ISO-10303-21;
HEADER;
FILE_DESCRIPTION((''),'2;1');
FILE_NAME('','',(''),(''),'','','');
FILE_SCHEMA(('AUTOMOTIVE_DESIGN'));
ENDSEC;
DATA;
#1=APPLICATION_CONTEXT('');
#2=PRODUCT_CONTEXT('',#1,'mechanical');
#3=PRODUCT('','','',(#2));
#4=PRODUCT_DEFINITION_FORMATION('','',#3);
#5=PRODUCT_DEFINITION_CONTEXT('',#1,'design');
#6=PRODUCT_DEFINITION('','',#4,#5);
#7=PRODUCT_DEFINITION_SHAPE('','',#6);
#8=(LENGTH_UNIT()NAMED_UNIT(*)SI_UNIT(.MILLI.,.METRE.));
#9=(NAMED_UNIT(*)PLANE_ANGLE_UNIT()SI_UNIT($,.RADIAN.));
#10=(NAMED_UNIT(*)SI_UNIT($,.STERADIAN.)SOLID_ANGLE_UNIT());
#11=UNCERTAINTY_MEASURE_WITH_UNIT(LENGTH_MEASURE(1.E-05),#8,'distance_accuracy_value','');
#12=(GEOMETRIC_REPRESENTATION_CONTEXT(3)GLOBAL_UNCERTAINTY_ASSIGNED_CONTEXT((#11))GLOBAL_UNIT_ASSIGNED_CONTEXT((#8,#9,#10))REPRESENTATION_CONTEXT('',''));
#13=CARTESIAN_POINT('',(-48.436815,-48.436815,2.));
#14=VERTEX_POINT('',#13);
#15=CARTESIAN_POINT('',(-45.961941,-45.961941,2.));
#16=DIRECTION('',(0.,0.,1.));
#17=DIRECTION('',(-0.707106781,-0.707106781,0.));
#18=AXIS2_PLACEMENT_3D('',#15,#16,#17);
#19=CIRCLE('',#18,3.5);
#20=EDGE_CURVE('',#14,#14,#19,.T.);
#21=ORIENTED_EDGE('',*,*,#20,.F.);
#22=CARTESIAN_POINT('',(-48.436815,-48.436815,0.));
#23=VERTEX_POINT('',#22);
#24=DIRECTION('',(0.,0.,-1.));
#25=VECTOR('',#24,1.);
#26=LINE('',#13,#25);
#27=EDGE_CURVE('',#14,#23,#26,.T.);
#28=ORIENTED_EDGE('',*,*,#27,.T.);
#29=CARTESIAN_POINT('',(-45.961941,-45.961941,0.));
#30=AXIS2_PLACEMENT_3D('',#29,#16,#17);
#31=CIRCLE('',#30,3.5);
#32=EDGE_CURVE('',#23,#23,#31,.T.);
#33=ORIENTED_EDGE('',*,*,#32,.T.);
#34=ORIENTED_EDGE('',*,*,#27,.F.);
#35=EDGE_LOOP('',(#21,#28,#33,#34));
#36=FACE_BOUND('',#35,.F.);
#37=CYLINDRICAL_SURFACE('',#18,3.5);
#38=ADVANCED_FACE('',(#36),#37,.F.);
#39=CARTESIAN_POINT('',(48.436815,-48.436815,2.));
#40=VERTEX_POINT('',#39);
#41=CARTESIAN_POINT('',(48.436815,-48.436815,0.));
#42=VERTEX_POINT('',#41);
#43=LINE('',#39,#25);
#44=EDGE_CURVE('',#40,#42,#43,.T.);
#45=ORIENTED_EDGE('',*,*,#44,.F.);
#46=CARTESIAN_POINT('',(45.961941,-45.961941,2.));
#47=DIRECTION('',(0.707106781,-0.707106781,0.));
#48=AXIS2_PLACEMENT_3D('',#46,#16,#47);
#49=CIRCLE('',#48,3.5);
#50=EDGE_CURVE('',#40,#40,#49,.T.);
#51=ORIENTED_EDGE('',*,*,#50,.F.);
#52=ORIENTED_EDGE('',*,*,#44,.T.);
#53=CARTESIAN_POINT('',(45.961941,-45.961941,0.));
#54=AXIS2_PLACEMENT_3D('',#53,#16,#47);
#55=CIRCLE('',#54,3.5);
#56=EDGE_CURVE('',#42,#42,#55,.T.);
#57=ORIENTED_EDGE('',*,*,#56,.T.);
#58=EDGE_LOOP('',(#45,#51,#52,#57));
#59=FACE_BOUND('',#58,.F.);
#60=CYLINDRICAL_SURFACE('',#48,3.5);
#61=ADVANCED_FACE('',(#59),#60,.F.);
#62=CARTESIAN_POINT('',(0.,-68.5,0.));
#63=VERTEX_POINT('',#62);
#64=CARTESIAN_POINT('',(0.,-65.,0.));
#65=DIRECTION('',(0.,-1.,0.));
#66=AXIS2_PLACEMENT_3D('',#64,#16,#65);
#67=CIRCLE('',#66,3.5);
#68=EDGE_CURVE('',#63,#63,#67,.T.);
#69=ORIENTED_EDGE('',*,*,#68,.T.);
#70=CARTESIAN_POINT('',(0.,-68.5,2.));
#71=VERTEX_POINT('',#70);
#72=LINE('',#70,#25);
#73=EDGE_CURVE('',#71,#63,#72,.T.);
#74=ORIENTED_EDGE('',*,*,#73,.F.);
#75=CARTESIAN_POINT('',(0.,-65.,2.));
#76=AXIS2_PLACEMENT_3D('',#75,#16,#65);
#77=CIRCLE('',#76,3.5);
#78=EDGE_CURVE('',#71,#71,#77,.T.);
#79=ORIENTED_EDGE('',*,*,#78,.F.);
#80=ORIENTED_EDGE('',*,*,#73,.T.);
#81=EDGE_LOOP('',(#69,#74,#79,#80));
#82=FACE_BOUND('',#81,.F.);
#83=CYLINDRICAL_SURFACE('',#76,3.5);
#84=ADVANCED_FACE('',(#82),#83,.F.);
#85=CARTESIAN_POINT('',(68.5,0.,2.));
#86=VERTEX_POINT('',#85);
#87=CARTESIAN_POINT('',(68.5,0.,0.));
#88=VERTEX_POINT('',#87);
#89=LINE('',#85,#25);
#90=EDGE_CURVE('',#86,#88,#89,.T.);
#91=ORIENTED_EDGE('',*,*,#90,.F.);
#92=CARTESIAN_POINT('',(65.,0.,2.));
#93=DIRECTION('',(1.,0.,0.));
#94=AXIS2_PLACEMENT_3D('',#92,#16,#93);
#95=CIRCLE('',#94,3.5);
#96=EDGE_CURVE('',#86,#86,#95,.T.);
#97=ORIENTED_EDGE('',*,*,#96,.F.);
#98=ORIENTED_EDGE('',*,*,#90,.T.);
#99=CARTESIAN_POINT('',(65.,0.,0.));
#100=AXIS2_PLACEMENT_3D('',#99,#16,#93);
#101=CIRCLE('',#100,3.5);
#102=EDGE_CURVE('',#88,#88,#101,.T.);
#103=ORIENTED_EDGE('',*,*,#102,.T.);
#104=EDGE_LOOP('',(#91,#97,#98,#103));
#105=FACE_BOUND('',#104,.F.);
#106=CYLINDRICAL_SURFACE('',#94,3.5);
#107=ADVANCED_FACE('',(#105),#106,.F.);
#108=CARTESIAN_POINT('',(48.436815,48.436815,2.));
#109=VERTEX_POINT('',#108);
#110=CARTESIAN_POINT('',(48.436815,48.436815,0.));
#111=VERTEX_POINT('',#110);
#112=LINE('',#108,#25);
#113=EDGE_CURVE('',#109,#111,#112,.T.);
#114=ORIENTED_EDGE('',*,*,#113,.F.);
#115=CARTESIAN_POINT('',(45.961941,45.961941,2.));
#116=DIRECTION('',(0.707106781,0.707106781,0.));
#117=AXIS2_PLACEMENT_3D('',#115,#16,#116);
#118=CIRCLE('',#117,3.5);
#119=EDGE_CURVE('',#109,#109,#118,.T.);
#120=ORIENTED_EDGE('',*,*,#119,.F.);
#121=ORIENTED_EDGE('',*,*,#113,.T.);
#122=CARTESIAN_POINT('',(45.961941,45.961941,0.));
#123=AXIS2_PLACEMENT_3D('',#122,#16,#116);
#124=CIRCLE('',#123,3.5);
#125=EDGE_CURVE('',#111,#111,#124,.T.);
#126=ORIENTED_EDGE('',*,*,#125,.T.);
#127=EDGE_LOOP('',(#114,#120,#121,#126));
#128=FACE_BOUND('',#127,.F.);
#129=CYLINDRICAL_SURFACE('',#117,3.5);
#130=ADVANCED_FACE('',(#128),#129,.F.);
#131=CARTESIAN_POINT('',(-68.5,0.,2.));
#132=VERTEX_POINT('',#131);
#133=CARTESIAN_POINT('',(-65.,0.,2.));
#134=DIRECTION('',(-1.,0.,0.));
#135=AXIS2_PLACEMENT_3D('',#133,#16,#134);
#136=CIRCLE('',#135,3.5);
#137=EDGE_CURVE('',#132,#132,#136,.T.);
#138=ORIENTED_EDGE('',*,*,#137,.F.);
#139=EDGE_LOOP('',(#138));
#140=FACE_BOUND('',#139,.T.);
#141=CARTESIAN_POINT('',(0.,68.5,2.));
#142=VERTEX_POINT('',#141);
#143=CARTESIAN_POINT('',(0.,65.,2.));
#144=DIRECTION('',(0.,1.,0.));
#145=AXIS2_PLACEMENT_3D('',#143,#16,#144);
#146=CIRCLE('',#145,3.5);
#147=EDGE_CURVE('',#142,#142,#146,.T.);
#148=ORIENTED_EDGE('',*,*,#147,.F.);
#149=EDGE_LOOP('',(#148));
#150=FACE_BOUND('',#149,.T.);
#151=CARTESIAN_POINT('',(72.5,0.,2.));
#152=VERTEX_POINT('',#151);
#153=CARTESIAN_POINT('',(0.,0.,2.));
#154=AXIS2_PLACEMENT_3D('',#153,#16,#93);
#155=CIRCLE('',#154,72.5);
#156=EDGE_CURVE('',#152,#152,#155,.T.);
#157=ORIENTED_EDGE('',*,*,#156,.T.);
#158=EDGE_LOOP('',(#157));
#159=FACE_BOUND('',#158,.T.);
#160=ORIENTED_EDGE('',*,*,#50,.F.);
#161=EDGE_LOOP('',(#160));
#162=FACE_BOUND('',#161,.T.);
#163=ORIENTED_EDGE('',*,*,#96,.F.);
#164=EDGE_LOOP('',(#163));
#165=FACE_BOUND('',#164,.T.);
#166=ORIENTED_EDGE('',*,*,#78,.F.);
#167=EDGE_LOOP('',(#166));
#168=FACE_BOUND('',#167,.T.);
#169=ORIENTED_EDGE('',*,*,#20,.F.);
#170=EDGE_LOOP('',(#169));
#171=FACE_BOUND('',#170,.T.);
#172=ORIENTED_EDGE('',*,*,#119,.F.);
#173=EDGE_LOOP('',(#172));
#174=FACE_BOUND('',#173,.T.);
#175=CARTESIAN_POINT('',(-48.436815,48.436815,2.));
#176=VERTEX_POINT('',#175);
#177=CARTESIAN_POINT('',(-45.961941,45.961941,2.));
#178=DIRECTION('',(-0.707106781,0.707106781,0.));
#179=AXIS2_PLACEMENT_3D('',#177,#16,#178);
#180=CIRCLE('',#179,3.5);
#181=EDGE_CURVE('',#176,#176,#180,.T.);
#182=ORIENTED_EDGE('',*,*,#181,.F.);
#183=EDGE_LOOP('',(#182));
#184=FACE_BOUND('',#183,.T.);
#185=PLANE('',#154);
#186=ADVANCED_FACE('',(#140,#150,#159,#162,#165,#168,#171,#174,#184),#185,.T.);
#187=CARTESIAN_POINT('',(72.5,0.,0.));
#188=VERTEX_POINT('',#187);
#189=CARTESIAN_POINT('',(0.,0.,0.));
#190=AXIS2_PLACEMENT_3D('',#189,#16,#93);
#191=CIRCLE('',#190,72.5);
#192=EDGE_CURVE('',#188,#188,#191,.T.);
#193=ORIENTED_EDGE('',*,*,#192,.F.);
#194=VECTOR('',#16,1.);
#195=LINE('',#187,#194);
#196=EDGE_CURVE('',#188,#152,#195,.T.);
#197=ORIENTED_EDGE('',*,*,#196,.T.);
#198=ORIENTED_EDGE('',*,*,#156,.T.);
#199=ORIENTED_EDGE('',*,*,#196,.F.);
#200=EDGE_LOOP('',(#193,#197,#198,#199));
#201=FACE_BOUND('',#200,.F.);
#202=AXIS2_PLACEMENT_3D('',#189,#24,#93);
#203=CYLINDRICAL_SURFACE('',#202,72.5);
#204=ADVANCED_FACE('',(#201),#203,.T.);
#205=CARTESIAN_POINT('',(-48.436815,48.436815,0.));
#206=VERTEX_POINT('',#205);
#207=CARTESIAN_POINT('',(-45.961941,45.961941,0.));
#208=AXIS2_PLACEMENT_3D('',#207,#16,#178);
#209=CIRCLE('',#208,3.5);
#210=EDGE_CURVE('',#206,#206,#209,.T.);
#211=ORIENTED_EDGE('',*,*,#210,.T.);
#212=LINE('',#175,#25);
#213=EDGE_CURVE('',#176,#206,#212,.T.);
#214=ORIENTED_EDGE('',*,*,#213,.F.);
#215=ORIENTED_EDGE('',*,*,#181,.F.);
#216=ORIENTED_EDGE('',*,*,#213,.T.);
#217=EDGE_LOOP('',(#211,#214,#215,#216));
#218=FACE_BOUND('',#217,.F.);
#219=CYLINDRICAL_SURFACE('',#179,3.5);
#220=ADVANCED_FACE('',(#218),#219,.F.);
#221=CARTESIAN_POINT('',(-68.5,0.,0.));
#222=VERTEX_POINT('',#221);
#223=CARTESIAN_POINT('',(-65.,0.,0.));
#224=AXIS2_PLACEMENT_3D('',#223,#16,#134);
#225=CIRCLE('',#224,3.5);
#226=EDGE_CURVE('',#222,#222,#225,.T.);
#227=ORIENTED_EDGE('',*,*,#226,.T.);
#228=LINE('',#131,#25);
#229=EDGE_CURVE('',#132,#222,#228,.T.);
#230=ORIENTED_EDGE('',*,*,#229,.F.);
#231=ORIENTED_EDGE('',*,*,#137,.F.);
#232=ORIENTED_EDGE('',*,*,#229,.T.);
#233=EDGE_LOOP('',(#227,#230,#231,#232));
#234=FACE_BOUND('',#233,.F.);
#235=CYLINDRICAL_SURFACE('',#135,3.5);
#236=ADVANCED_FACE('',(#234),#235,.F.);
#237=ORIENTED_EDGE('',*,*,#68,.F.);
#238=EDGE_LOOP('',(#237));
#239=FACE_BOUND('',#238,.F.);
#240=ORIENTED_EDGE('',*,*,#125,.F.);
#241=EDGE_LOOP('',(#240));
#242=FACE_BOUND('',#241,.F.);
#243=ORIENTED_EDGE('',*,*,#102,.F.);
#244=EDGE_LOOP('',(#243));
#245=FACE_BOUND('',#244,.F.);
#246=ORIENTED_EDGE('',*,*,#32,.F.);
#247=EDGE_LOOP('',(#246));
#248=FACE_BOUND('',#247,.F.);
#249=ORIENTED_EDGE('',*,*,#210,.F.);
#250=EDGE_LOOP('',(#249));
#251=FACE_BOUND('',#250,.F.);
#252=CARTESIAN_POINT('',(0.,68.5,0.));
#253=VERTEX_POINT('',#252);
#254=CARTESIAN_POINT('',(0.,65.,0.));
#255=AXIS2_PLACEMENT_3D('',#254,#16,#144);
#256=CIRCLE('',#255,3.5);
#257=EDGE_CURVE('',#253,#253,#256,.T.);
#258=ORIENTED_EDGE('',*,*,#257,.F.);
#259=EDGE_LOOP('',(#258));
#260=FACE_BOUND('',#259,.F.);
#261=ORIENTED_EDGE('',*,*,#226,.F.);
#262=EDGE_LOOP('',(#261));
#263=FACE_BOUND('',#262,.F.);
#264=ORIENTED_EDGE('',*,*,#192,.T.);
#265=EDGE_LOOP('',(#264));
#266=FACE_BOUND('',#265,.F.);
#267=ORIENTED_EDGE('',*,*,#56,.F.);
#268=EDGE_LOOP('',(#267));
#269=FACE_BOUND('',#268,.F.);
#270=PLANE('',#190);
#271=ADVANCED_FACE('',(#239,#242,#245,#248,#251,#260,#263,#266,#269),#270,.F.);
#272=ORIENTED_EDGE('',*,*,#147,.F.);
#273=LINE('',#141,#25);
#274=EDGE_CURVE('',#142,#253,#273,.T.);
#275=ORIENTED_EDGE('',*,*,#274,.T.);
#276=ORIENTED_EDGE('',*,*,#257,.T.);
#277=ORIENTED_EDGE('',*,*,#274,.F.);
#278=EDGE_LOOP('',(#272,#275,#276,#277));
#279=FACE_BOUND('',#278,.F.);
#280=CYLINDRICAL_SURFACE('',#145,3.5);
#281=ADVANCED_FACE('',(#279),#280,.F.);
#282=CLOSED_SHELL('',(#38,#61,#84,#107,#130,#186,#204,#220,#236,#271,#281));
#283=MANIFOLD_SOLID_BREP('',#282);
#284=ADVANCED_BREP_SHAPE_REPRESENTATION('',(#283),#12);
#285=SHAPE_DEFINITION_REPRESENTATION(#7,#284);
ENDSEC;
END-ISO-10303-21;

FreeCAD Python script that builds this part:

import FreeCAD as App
import Part
import Sketcher
from FreeCAD import Vector
Q = App.Units.Quantity

doc = App.newDocument("Part")
body = doc.addObject("PartDesign::Body", "Body")

# Sketch on XY plane
sketch1 = doc.addObject("Sketcher::SketchObject", "Sketch")
body.addObject(sketch1)
sketch1.AttachmentSupport = (doc.XY_Plane, [""])
sketch1.MapMode = "FlatFace"
sketch1.addGeometry(Part.Circle(Vector(0, 0, 0), Vector(0, 0, 1), 72), False)
sketch1.addConstraint([
    Sketcher.Constraint("Coincident", 0, 3, -1, 1),
    Sketcher.Constraint("Diameter", 0, Q("145 mm")),
])
pad1 = doc.addObject("PartDesign::Pad", "Pad")
body.addObject(pad1)
pad1.Profile = sketch1
pad1.Length = 2

# Sketch on XY plane
sketch2 = doc.addObject("Sketcher::SketchObject", "Sketch001")
body.addObject(sketch2)
sketch2.AttachmentSupport = (doc.XY_Plane, [""])
sketch2.MapMode = "FlatFace"
sketch2.AttachmentOffset = App.Placement(Vector(0, 0, 2), App.Rotation())
sketch2.addGeometry(Part.Circle(Vector(65, 0, 0), Vector(0, 0, 1), 3.5), False)
sketch2.addConstraint([
    Sketcher.Constraint("PointOnObject", 0, 3, -1),
    Sketcher.Constraint("Diameter", 0, Q("7 mm")),
    Sketcher.Constraint("DistanceX", -1, 1, 0, 3, Q("65 mm")),
])
pocket1 = doc.addObject("PartDesign::Pocket", "Pocket")
body.addObject(pocket1)
pocket1.Profile = sketch2
pocket1.Length = 2
doc.recompute()

polarpattern = doc.addObject("PartDesign::PolarPattern", "PolarPattern")
body.addObject(polarpattern)
polarpattern.Originals = [pocket1]
polarpattern.Axis = (doc.Z_Axis, [""])
polarpattern.Angle = 360
polarpattern.Occurrences = 8
body.Tip = polarpattern

doc.recompute()
